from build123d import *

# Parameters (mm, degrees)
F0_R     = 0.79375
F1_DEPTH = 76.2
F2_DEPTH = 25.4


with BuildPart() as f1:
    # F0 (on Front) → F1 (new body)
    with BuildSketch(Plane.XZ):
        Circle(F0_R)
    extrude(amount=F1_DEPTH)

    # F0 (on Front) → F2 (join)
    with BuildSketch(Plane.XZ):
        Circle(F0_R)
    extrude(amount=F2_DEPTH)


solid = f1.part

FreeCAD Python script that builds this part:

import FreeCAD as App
import Part
import Sketcher
Q = App.Units.Quantity

doc = App.newDocument("Part")
body = doc.addObject("PartDesign::Body", "Body")

sketch1 = body.newObject("Sketcher::SketchObject", "Sketch")
sketch1.AttachmentSupport = (doc.getObject("XZ_Plane"), [""])
sketch1.MapMode = "FlatFace"
sketch1.addGeometry(Part.Circle(App.Vector(0, 0, 0), App.Vector(0, 0, 1), 0.8), False)
sketch1.addConstraint(Sketcher.Constraint("Coincident", 0, 3, -1, 1))
sketch1.addConstraint(Sketcher.Constraint("Diameter", 0, Q("0.0625 in")))
pad1 = body.newObject("PartDesign::Pad", "Pad")
pad1.Profile = sketch1
pad1.Length = Q("3 in")

sketch2 = body.newObject("Sketcher::SketchObject", "Sketch001")
sketch2.AttachmentSupport = (doc.getObject("XZ_Plane"), [""])
sketch2.MapMode = "FlatFace"
sketch2.addGeometry(Part.Circle(App.Vector(0, 0, 0), App.Vector(0, 0, 1), 0.8), False)
sketch2.addConstraint(Sketcher.Constraint("Coincident", 0, 3, -1, 1))
sketch2.addConstraint(Sketcher.Constraint("Diameter", 0, Q("0.0625 in")))
pad2 = body.newObject("PartDesign::Pad", "Pad001")
pad2.Profile = sketch2
pad2.Length = Q("1 in")

doc.recompute()
